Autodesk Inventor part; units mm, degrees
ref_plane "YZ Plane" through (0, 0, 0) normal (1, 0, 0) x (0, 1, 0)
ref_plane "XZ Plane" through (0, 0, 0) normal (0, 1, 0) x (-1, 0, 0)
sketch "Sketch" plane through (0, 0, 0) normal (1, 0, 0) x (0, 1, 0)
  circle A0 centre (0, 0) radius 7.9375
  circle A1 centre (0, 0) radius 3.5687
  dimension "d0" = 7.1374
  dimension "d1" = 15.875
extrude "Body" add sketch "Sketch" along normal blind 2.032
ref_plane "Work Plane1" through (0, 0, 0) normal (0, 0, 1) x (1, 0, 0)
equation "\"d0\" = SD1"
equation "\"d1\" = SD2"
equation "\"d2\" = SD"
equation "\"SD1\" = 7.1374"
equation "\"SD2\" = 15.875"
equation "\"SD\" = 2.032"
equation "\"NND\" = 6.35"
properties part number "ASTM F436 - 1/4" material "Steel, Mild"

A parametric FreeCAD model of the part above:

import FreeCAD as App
import Part
import Sketcher

V = App.Vector
Q = App.Units.Quantity

doc = App.newDocument("Part")
body = doc.addObject("PartDesign::Body", "Body")

sketch1 = body.newObject("Sketcher::SketchObject", "Sketch")
sketch1.AttachmentSupport = (doc.getObject("YZ_Plane"), [""])
sketch1.MapMode = "FlatFace"
sketch1.addGeometry(Part.Circle(V(0, 0, 0), V(0, 0, 1), 7.9), False)
sketch1.addGeometry(Part.Circle(V(0, 0, 0), V(0, 0, 1), 3.6), False)
sketch1.addConstraint(Sketcher.Constraint("Coincident", 0, 3, -1, 1))
sketch1.addConstraint(Sketcher.Constraint("Coincident", 1, 3, -1, 1))
sketch1.addConstraint(Sketcher.Constraint("Diameter", 0, Q("0.625 in")))
sketch1.addConstraint(Sketcher.Constraint("Diameter", 1, Q("0.281 in")))
pad1 = body.newObject("PartDesign::Pad", "Pad")
pad1.Profile = sketch1
pad1.Length = Q("0.08 in")

doc.recompute()
